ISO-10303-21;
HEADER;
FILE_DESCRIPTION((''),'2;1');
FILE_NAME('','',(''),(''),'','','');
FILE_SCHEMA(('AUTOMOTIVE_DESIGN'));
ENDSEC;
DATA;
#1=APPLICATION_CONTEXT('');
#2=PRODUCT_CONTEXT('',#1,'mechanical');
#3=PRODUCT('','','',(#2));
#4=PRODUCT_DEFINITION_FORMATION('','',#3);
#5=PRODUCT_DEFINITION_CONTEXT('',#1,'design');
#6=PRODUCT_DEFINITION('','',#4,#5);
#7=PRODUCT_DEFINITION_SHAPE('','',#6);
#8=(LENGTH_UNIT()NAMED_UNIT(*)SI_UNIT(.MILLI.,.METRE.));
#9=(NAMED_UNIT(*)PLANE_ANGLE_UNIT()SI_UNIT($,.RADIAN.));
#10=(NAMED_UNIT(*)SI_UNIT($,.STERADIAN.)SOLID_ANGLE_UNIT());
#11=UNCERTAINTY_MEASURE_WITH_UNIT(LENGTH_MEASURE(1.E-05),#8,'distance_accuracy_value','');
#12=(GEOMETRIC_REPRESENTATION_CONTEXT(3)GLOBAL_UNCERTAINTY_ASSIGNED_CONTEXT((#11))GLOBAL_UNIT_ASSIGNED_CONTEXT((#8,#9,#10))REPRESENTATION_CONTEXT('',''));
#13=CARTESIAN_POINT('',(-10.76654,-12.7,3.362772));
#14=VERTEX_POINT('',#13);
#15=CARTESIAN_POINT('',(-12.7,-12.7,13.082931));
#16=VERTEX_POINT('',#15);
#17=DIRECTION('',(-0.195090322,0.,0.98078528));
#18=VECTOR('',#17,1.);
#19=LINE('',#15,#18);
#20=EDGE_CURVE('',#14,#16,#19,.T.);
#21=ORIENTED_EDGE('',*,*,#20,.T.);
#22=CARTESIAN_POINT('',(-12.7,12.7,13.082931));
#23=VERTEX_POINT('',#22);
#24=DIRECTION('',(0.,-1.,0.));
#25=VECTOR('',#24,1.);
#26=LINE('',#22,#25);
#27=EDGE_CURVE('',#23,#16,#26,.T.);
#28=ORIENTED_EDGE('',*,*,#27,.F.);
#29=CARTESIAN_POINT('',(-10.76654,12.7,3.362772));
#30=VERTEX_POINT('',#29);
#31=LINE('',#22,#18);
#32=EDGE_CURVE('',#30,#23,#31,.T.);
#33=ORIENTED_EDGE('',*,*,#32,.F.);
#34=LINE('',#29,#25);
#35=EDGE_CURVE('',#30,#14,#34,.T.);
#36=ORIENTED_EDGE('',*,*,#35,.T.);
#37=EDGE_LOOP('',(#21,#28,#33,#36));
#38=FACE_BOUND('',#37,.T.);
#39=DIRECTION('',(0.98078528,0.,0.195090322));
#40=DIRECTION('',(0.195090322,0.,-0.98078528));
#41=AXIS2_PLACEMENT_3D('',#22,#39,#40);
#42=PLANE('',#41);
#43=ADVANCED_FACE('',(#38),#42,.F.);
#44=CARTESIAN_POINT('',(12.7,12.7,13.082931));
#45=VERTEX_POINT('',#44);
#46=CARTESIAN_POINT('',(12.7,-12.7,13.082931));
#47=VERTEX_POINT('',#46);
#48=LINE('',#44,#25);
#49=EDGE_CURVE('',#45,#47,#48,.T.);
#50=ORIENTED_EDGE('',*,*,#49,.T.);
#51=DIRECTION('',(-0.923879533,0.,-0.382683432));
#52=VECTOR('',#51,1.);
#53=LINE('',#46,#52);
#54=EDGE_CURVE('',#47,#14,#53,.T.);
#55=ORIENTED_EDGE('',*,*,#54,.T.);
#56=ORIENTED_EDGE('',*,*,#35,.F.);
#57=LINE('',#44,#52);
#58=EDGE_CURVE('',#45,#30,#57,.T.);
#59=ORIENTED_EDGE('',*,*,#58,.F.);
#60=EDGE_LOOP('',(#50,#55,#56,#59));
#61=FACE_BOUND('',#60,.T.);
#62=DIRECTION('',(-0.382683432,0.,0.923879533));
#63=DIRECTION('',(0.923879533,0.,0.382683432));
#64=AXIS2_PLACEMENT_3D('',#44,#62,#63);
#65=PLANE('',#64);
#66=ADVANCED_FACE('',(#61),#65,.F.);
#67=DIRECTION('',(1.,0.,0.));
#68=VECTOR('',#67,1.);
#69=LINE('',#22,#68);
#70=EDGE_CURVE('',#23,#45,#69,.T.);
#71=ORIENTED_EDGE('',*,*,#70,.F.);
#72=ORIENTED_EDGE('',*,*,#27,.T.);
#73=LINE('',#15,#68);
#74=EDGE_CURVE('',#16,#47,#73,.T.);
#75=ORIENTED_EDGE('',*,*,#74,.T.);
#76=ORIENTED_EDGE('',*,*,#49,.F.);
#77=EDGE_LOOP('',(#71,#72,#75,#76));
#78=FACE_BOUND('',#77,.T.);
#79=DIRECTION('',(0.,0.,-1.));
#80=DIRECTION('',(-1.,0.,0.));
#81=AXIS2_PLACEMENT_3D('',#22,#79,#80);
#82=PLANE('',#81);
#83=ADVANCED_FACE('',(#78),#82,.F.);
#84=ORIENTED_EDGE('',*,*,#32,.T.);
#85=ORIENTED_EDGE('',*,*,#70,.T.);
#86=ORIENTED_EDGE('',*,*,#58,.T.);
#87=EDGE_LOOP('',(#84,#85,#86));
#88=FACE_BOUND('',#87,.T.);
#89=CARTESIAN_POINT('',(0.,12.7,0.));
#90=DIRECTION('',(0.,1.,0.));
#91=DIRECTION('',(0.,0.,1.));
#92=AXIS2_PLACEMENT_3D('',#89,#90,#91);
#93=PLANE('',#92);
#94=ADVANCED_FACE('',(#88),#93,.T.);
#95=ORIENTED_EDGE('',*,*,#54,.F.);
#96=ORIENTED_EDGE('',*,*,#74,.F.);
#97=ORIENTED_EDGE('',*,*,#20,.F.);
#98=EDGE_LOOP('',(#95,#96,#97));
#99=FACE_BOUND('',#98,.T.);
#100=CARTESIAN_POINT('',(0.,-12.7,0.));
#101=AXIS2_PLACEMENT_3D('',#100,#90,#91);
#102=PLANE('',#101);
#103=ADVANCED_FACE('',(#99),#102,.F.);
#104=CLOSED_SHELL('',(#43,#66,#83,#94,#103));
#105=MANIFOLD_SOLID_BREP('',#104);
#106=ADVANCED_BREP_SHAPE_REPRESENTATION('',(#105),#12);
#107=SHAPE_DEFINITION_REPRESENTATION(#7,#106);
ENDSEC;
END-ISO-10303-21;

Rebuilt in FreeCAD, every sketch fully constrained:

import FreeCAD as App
import Part
import Sketcher

V = App.Vector
Q = App.Units.Quantity


def add_polygon(sketch, points):
    """Adds a closed chain of lines whose ends are joined by coincident constraints."""
    first, n = sketch.GeometryCount, len(points)
    for a, b in zip(points, points[1:] + points[:1]):
        sketch.addGeometry(Part.LineSegment(App.Vector(*a, 0), App.Vector(*b, 0)), False)
    for i in range(n):
        sketch.addConstraint(Sketcher.Constraint("Coincident", first + i, 2, first + (i + 1) % n, 1))

doc = App.newDocument("Part")
body = doc.addObject("PartDesign::Body", "Body")

# Sketch on XZ plane
sketch1 = doc.addObject("Sketcher::SketchObject", "Sketch")
body.addObject(sketch1)
sketch1.AttachmentSupport = (doc.XZ_Plane, [""])
sketch1.MapMode = "FlatFace"
add_polygon(sketch1, [(13, 13), (-11, 3), (-13, 13)])  # lines 0-2
sketch1.addConstraint(Sketcher.Constraint("Horizontal", 2))
sketch1.addConstraint(Sketcher.Constraint("DistanceX", 2, 1, 2, 2, Q("1 in")))
sketch1.addConstraint(Sketcher.Constraint("Distance", 0, Q("1 in")))
sketch1.addConstraint(Sketcher.Constraint("DistanceX", 1, 2, -1, 1, Q("0.5 in")))
sketch1.addConstraint(Sketcher.Constraint("Angle", 0, Q("-157.5 deg")))
sketch1.addConstraint(Sketcher.Constraint("DistanceY", -1, 1, 1, 2, Q("13.082931 mm")))
pad1 = doc.addObject("PartDesign::Pad", "Pad")
body.addObject(pad1)
pad1.Profile = sketch1
pad1.Length = Q("1 in")
pad1.Midplane = True

doc.recompute()
